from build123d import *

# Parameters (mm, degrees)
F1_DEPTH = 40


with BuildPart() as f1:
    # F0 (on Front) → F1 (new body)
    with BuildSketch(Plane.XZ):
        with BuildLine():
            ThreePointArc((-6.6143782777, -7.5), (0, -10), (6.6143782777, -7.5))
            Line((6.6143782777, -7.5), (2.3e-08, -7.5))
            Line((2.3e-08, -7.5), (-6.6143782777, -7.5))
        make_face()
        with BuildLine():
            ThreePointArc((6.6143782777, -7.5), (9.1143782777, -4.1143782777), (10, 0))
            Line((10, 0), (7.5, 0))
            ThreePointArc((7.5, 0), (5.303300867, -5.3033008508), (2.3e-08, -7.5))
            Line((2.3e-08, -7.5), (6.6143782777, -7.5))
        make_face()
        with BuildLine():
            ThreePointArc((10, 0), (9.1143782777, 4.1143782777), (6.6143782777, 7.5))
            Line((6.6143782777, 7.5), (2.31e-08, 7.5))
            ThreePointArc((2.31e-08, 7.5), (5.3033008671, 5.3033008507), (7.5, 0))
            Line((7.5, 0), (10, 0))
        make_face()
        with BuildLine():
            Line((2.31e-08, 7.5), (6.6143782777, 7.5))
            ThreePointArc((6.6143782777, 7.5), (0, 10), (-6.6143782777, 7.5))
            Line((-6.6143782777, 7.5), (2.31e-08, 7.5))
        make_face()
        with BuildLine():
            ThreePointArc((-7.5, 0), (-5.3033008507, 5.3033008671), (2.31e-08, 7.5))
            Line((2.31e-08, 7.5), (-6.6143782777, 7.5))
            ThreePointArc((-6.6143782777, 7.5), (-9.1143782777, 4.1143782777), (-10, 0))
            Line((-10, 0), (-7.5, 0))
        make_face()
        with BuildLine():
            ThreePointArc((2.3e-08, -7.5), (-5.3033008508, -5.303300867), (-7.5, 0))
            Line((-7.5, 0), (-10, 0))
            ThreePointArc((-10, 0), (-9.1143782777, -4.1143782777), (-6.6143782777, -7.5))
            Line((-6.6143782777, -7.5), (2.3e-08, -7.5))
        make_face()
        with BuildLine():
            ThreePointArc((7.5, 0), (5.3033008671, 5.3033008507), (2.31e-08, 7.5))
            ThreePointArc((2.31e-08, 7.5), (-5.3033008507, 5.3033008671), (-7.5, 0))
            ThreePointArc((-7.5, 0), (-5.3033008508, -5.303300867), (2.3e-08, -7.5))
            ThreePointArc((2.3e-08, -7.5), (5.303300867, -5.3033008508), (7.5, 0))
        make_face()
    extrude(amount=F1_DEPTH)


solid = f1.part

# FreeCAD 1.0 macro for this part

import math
import FreeCAD as App
import Part
import Sketcher
from FreeCAD import Vector

doc = App.newDocument("Part")
params = doc.addObject("Spreadsheet::Sheet", "Params")
for row, (alias, value) in enumerate([
    ("sketch1_radius", "10 mm"),
    ("pad1_length", "40 mm"),
], start=1):
    params.set(f"A{row}", alias)
    params.set(f"B{row}", "=" + value)
    params.setAlias(f"B{row}", alias)

body = doc.addObject("PartDesign::Body", "Body")

# Sketch on XZ plane
sketch1 = body.newObject("Sketcher::SketchObject", "Sketch")
sketch1.AttachmentSupport = (doc.getObject("XZ_Plane"), [""])
sketch1.MapMode = "FlatFace"
sketch1.addGeometry(Part.ArcOfCircle(Part.Circle(Vector(0, 0, 0), Vector(0, 0, 1), 10), math.radians(-131), math.radians(-49)), False)
sketch1.addGeometry(Part.ArcOfCircle(Part.Circle(Vector(0, 0, 0), Vector(0, 0, 1), 10), math.radians(-49), math.radians(0)), False)
sketch1.addGeometry(Part.ArcOfCircle(Part.Circle(Vector(0, 0, 0), Vector(0, 0, 1), 10), math.radians(0), math.radians(49)), False)
sketch1.addGeometry(Part.ArcOfCircle(Part.Circle(Vector(0, 0, 0), Vector(0, 0, 1), 10), math.radians(49), math.radians(131)), False)
sketch1.addGeometry(Part.ArcOfCircle(Part.Circle(Vector(0, 0, 0), Vector(0, 0, 1), 10), math.radians(131), math.radians(180)), False)
sketch1.addGeometry(Part.ArcOfCircle(Part.Circle(Vector(0, 0, 0), Vector(0, 0, 1), 10), math.radians(180), math.radians(229)), False)
sketch1.addConstraint(Sketcher.Constraint("Tangent", 0, 2, 1, 1))
sketch1.addConstraint(Sketcher.Constraint("Tangent", 1, 2, 2, 1))
sketch1.addConstraint(Sketcher.Constraint("Tangent", 2, 2, 3, 1))
sketch1.addConstraint(Sketcher.Constraint("Tangent", 3, 2, 4, 1))
sketch1.addConstraint(Sketcher.Constraint("Tangent", 4, 2, 5, 1))
sketch1.addConstraint(Sketcher.Constraint("Tangent", 5, 2, 0, 1))
sketch1.addConstraint(Sketcher.Constraint("Coincident", 0, 3, -1, 1))
sketch1.addConstraint(Sketcher.Constraint("Coincident", 2, 3, -1, 1))
sketch1.addConstraint(Sketcher.Constraint("Equal", 2, 3))
sketch1.addConstraint(Sketcher.Constraint("PointOnObject", 1, 2, -1))
sketch1.addConstraint(Sketcher.Constraint("PointOnObject", 4, 2, -1))
sketch1.addConstraint(Sketcher.Constraint("Horizontal", 2, 2, 3, 2))
sketch1.addConstraint(Sketcher.Constraint("Horizontal", 0, 2, 5, 2))
sketch1.addConstraint(Sketcher.Constraint("Vertical", 0, 2, 2, 2))
sketch1.addConstraint(Sketcher.Constraint("Radius", 0, 10.0))
sketch1.addConstraint(Sketcher.Constraint("DistanceY", 0, 2, -1, 1, 7.5))
sketch1.setExpression("Constraints[14]", "Params.sketch1_radius")
pad1 = body.newObject("PartDesign::Pad", "Pad")
pad1.Profile = sketch1
pad1.setExpression("Length", "Params.pad1_length")

doc.recompute()
